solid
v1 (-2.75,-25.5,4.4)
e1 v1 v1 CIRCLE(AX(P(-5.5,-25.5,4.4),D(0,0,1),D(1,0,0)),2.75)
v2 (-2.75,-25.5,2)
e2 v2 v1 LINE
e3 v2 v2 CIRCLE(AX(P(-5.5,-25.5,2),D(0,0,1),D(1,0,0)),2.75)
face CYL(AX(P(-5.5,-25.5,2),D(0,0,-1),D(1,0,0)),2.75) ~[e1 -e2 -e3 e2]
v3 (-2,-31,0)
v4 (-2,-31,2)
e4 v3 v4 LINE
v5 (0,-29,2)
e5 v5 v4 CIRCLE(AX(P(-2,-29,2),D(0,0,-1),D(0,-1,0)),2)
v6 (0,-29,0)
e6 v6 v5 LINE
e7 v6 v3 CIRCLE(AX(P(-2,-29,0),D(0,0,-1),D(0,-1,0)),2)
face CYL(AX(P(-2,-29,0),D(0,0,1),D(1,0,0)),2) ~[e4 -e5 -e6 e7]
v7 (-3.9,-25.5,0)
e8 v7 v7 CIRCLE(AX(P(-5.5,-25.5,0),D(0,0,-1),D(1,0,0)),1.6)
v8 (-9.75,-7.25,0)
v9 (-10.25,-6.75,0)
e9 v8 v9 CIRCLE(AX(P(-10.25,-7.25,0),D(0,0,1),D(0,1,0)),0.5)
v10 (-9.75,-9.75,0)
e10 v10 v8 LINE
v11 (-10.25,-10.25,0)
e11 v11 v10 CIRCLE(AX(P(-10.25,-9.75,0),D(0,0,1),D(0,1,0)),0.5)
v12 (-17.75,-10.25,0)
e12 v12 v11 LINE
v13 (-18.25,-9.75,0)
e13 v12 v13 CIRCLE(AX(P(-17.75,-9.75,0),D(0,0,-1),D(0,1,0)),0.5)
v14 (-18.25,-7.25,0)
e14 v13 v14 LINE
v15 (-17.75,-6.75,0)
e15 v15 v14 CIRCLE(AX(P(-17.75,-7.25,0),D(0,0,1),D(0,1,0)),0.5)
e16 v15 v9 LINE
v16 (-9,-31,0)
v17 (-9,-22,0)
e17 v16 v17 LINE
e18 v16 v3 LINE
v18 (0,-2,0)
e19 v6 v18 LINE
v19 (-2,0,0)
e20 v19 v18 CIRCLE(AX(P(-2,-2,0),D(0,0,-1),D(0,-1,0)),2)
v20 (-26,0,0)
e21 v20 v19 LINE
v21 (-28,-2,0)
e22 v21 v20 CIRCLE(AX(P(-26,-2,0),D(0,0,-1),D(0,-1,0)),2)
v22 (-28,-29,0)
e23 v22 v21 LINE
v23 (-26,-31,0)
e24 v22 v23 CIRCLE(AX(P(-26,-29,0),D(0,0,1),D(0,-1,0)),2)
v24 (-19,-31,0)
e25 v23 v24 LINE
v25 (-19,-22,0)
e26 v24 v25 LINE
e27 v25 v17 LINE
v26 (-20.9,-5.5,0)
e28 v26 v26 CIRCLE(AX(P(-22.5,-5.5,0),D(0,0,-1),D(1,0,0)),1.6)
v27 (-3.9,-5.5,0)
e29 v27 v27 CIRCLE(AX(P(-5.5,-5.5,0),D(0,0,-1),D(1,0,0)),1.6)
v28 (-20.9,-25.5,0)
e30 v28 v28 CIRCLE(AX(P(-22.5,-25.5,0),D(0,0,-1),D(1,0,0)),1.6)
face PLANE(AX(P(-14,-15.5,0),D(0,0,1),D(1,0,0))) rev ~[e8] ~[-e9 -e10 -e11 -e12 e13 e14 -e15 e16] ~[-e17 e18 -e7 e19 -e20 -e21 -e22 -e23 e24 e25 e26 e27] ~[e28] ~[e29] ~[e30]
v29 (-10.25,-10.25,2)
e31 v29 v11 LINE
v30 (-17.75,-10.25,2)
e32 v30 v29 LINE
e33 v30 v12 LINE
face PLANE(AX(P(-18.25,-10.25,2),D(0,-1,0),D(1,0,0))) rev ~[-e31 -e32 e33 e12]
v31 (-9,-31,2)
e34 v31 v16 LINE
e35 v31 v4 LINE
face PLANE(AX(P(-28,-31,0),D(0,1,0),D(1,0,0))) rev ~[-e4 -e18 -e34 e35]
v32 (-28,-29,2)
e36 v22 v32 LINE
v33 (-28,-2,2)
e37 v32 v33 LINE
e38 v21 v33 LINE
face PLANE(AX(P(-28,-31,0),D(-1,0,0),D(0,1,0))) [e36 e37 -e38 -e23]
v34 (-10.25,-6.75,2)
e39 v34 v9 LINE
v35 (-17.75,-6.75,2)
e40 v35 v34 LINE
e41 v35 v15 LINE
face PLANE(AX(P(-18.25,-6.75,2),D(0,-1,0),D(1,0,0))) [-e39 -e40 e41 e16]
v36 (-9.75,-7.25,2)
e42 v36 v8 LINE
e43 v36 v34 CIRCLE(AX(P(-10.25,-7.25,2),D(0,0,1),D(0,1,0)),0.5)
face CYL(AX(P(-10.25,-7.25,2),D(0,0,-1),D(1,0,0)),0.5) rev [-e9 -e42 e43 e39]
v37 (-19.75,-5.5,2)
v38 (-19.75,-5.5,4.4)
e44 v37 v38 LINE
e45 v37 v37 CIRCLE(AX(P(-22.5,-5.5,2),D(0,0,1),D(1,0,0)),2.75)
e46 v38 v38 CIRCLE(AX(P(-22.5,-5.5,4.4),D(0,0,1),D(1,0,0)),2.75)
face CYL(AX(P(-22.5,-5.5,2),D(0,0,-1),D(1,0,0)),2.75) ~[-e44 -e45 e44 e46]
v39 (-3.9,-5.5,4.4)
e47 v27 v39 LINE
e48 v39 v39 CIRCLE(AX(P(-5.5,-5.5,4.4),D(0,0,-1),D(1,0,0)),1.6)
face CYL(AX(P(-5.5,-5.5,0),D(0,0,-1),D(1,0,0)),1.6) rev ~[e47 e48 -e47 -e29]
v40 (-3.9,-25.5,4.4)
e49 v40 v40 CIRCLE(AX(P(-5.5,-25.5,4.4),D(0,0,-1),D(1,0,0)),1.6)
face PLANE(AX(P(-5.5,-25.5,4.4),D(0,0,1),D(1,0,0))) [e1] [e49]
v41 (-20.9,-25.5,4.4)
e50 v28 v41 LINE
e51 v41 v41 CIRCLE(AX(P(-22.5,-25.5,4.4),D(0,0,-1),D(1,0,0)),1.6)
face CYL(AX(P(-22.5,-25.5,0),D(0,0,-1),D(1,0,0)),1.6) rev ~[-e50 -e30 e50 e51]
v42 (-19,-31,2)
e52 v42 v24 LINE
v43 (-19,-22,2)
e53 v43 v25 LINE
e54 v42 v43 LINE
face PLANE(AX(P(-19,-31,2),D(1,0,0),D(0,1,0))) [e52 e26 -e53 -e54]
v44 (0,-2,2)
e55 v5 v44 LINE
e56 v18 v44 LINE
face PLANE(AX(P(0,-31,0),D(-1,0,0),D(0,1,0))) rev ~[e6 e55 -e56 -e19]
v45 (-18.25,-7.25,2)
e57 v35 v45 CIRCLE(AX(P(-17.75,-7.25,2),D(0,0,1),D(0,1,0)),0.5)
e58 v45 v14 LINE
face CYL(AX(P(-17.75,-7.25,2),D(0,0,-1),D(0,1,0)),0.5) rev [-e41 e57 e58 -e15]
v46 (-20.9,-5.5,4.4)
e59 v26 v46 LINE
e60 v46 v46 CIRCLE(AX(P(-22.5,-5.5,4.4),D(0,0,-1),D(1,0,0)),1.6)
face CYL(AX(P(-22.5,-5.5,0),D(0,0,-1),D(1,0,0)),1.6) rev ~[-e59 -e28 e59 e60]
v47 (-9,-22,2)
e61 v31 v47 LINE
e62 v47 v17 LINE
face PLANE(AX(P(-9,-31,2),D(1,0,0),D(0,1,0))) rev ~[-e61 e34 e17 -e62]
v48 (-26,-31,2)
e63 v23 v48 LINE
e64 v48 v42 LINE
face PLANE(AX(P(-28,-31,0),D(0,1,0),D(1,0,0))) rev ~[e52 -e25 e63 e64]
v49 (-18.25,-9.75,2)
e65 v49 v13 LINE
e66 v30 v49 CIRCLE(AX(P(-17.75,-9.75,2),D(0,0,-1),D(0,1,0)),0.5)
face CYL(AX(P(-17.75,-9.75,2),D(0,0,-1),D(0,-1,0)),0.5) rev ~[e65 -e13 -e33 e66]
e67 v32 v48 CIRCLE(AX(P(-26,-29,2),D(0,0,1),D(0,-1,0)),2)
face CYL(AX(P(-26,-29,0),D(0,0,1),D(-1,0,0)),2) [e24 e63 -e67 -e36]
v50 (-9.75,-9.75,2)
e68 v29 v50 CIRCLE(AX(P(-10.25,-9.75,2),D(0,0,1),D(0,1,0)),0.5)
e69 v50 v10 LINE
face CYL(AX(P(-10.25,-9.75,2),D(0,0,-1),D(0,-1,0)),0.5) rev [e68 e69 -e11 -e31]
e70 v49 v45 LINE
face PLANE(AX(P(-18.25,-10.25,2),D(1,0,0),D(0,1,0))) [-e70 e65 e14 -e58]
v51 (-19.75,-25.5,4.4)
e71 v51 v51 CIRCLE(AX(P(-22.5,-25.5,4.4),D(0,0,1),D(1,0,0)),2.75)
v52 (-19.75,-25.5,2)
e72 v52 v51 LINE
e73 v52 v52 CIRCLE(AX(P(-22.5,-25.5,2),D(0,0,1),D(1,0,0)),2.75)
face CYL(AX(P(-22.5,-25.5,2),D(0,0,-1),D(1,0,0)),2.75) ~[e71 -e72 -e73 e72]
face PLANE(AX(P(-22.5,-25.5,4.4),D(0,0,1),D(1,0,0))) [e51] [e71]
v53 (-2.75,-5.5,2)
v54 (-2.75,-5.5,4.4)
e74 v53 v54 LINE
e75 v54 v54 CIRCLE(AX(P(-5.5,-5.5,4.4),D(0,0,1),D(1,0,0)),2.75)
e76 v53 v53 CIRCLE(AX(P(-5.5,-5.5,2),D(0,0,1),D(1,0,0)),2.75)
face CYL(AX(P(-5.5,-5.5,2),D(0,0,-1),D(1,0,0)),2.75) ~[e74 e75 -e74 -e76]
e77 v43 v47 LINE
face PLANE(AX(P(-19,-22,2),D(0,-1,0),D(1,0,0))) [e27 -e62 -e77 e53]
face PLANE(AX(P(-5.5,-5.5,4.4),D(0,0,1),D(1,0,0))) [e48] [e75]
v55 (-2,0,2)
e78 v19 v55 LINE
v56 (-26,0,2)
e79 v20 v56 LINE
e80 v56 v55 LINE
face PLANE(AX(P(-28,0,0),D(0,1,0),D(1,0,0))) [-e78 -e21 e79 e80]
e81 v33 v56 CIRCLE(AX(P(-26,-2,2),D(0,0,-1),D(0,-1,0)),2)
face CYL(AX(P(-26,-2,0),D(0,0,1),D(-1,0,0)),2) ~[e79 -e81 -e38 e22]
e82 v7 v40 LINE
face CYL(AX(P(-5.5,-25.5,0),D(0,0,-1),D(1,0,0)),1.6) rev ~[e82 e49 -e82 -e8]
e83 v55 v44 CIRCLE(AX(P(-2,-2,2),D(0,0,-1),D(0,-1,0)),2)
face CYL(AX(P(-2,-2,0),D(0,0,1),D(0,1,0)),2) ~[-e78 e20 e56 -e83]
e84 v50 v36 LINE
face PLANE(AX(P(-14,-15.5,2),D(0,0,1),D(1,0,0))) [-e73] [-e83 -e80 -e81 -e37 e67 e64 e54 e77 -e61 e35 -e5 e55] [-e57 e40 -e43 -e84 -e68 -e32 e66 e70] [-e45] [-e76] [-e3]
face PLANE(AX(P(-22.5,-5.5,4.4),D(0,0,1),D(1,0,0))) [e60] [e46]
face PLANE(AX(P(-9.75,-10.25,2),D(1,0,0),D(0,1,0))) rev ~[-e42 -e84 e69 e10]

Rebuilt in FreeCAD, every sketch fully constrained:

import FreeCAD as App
import Part
import Sketcher

V = App.Vector


def edges_at(feature, points):
    """Names of the edges that pass closest to the given points."""
    edges = feature.Shape.Edges
    near = lambda p: min(range(len(edges)), key=lambda i: edges[i].distToShape(Part.Vertex(*p))[0])
    return sorted({f"Edge{near(p) + 1}" for p in points})

doc = App.newDocument("Part")
body = doc.addObject("PartDesign::Body", "Body")

sketch1 = body.newObject("Sketcher::SketchObject", "Sketch")
sketch1.AttachmentSupport = (doc.getObject("XY_Plane"), [""])
sketch1.MapMode = "FlatFace"
sketch1.addGeometry([
    Part.LineSegment(V(-28, 0, 0), V(-28, -31, 0)),
    Part.LineSegment(V(-28, -31, 0), V(0, -31, 0)),
    Part.LineSegment(V(0, -31, 0), V(0, 0, 0)),
    Part.LineSegment(V(0, 0, 0), V(-28, 0, 0)),
], False)
sketch1.addConstraint([
    Sketcher.Constraint("Coincident", 0, 2, 1, 1),
    Sketcher.Constraint("Coincident", 1, 2, 2, 1),
    Sketcher.Constraint("Coincident", 2, 2, 3, 1),
    Sketcher.Constraint("Coincident", 3, 2, 0, 1),
    Sketcher.Constraint("Vertical", 0),
    Sketcher.Constraint("Horizontal", 1),
    Sketcher.Constraint("Vertical", 2),
    Sketcher.Constraint("Horizontal", 3),
    Sketcher.Constraint("Coincident", 2, 2, -1, 1),
    Sketcher.Constraint("DistanceX", 1, 1, 1, 2, 28.0),
    Sketcher.Constraint("DistanceY", 0, 2, 0, 1, 31.0),
])
pad1 = body.newObject("PartDesign::Pad", "Pad")
pad1.Profile = sketch1
pad1.Length = 2

sketch2 = body.newObject("Sketcher::SketchObject", "Sketch001")
sketch2.AttachmentSupport = (doc.getObject("XY_Plane"), [""])
sketch2.MapMode = "FlatFace"
sketch2.AttachmentOffset = App.Placement(V(0, 0, 2), App.Rotation())
sketch2.addGeometry([
    Part.Circle(V(-22.5, -5.5, 0), V(0, 0, 1), 2.8),
    Part.Circle(V(-5.5, -5.5, 0), V(0, 0, 1), 2.8),
    Part.Circle(V(-22.5, -25.5, 0), V(0, 0, 1), 2.8),
    Part.Circle(V(-5.5, -25.5, 0), V(0, 0, 1), 2.8),
], False)
sketch2.addConstraint([
    Sketcher.Constraint("Equal", 0, 1),
    Sketcher.Constraint("Equal", 1, 2),
    Sketcher.Constraint("Equal", 2, 3),
    Sketcher.Constraint("Horizontal", 0, 3, 1, 3),
    Sketcher.Constraint("Horizontal", 2, 3, 3, 3),
    Sketcher.Constraint("Vertical", 0, 3, 2, 3),
    Sketcher.Constraint("Vertical", 1, 3, 3, 3),
    Sketcher.Constraint("Diameter", 0, 5.5),
    Sketcher.Constraint("DistanceX", 0, 3, 1, 3, 17.0),
    Sketcher.Constraint("DistanceY", 2, 3, 0, 3, 20.0),
    Sketcher.Constraint("DistanceX", 0, 3, -1, 1, 22.5),
    Sketcher.Constraint("DistanceY", 0, 3, -1, 1, 5.5),
])
pad2 = body.newObject("PartDesign::Pad", "Pad001")
pad2.Profile = sketch2
pad2.Length = 2.4

sketch3 = body.newObject("Sketcher::SketchObject", "Sketch002")
sketch3.AttachmentSupport = (doc.getObject("XY_Plane"), [""])
sketch3.MapMode = "FlatFace"
sketch3.addGeometry([
    Part.Circle(V(-22.5, -25.5, 0), V(0, 0, 1), 1.6),
    Part.Circle(V(-5.5, -25.5, 0), V(0, 0, 1), 1.6),
    Part.Circle(V(-5.5, -5.5, 0), V(0, 0, 1), 1.6),
    Part.Circle(V(-22.5, -5.5, 0), V(0, 0, 1), 1.6),
], False)
sketch3.addConstraint([
    Sketcher.Constraint("Equal", 0, 1),
    Sketcher.Constraint("Equal", 1, 2),
    Sketcher.Constraint("Equal", 2, 3),
    Sketcher.Constraint("Horizontal", 0, 3, 1, 3),
    Sketcher.Constraint("Horizontal", 2, 3, 3, 3),
    Sketcher.Constraint("Vertical", 1, 3, 2, 3),
    Sketcher.Constraint("Vertical", 0, 3, 3, 3),
    Sketcher.Constraint("Diameter", 0, 3.2),
    Sketcher.Constraint("DistanceX", 0, 3, 1, 3, 17.0),
    Sketcher.Constraint("DistanceY", 1, 3, 2, 3, 20.0),
    Sketcher.Constraint("DistanceX", 0, 3, -1, 1, 22.5),
    Sketcher.Constraint("DistanceY", 0, 3, -1, 1, 25.5),
])
pocket1 = body.newObject("PartDesign::Pocket", "Pocket")
pocket1.Profile = sketch3
pocket1.Length = 25
pocket1.Reversed = True

sketch4 = body.newObject("Sketcher::SketchObject", "Sketch003")
sketch4.AttachmentSupport = (doc.getObject("XY_Plane"), [""])
sketch4.MapMode = "FlatFace"
sketch4.AttachmentOffset = App.Placement(V(0, 0, 2), App.Rotation())
sketch4.addGeometry([
    Part.LineSegment(V(-19, -22, 0), V(-19, -31, 0)),
    Part.LineSegment(V(-19, -31, 0), V(-9, -31, 0)),
    Part.LineSegment(V(-9, -31, 0), V(-9, -22, 0)),
    Part.LineSegment(V(-9, -22, 0), V(-19, -22, 0)),
], False)
sketch4.addConstraint([
    Sketcher.Constraint("Coincident", 0, 2, 1, 1),
    Sketcher.Constraint("Coincident", 1, 2, 2, 1),
    Sketcher.Constraint("Coincident", 2, 2, 3, 1),
    Sketcher.Constraint("Coincident", 3, 2, 0, 1),
    Sketcher.Constraint("Vertical", 0),
    Sketcher.Constraint("Horizontal", 1),
    Sketcher.Constraint("Vertical", 2),
    Sketcher.Constraint("Horizontal", 3),
    Sketcher.Constraint("DistanceX", 1, 1, 1, 2, 10.0),
    Sketcher.Constraint("DistanceY", 0, 2, 0, 1, 9.0),
    Sketcher.Constraint("DistanceX", 0, 2, -1, 1, 19.0),
    Sketcher.Constraint("DistanceY", 0, 2, -1, 1, 31.0),
])
pocket2 = body.newObject("PartDesign::Pocket", "Pocket001")
pocket2.Profile = sketch4
pocket2.Length = 5
doc.recompute()

fillet = body.newObject("PartDesign::Fillet", "Fillet")
fillet.Base = (pocket2, edges_at(pocket2, [
    (0, 0, 1),
    (0, -31, 1),
    (-28, 0, 1),
    (-28, -31, 1),
]))
fillet.Radius = 2

sketch5 = body.newObject("Sketcher::SketchObject", "Sketch004")
sketch5.AttachmentSupport = (doc.getObject("XY_Plane"), [""])
sketch5.MapMode = "FlatFace"
sketch5.AttachmentOffset = App.Placement(V(0, 0, 2), App.Rotation())
sketch5.addGeometry([
    Part.LineSegment(V(-18.2, -6.8, 0), V(-18.2, -10.2, 0)),
    Part.LineSegment(V(-18.2, -10.2, 0), V(-9.8, -10.2, 0)),
    Part.LineSegment(V(-9.8, -10.2, 0), V(-9.8, -6.8, 0)),
    Part.LineSegment(V(-9.8, -6.8, 0), V(-18.2, -6.8, 0)),
], False)
sketch5.addConstraint([
    Sketcher.Constraint("Coincident", 0, 2, 1, 1),
    Sketcher.Constraint("Coincident", 1, 2, 2, 1),
    Sketcher.Constraint("Coincident", 2, 2, 3, 1),
    Sketcher.Constraint("Coincident", 3, 2, 0, 1),
    Sketcher.Constraint("Vertical", 0),
    Sketcher.Constraint("Horizontal", 1),
    Sketcher.Constraint("Vertical", 2),
    Sketcher.Constraint("Horizontal", 3),
    Sketcher.Constraint("DistanceX", 1, 1, 1, 2, 8.5),
    Sketcher.Constraint("DistanceY", 0, 2, 0, 1, 3.5),
    Sketcher.Constraint("DistanceX", 0, 2, -1, 1, 18.25),
    Sketcher.Constraint("DistanceY", 0, 2, -1, 1, 10.25),
])
pocket3 = body.newObject("PartDesign::Pocket", "Pocket002")
pocket3.Profile = sketch5
pocket3.Length = 2
doc.recompute()

fillet2 = body.newObject("PartDesign::Fillet", "Fillet001")
fillet2.Base = (pocket3, edges_at(pocket3, [
    (-9.75, -6.75, 1),
    (-9.75, -10.25, 1),
    (-18.25, -10.25, 1),
    (-18.25, -6.75, 1),
]))
fillet2.Radius = 0.5

doc.recompute()
